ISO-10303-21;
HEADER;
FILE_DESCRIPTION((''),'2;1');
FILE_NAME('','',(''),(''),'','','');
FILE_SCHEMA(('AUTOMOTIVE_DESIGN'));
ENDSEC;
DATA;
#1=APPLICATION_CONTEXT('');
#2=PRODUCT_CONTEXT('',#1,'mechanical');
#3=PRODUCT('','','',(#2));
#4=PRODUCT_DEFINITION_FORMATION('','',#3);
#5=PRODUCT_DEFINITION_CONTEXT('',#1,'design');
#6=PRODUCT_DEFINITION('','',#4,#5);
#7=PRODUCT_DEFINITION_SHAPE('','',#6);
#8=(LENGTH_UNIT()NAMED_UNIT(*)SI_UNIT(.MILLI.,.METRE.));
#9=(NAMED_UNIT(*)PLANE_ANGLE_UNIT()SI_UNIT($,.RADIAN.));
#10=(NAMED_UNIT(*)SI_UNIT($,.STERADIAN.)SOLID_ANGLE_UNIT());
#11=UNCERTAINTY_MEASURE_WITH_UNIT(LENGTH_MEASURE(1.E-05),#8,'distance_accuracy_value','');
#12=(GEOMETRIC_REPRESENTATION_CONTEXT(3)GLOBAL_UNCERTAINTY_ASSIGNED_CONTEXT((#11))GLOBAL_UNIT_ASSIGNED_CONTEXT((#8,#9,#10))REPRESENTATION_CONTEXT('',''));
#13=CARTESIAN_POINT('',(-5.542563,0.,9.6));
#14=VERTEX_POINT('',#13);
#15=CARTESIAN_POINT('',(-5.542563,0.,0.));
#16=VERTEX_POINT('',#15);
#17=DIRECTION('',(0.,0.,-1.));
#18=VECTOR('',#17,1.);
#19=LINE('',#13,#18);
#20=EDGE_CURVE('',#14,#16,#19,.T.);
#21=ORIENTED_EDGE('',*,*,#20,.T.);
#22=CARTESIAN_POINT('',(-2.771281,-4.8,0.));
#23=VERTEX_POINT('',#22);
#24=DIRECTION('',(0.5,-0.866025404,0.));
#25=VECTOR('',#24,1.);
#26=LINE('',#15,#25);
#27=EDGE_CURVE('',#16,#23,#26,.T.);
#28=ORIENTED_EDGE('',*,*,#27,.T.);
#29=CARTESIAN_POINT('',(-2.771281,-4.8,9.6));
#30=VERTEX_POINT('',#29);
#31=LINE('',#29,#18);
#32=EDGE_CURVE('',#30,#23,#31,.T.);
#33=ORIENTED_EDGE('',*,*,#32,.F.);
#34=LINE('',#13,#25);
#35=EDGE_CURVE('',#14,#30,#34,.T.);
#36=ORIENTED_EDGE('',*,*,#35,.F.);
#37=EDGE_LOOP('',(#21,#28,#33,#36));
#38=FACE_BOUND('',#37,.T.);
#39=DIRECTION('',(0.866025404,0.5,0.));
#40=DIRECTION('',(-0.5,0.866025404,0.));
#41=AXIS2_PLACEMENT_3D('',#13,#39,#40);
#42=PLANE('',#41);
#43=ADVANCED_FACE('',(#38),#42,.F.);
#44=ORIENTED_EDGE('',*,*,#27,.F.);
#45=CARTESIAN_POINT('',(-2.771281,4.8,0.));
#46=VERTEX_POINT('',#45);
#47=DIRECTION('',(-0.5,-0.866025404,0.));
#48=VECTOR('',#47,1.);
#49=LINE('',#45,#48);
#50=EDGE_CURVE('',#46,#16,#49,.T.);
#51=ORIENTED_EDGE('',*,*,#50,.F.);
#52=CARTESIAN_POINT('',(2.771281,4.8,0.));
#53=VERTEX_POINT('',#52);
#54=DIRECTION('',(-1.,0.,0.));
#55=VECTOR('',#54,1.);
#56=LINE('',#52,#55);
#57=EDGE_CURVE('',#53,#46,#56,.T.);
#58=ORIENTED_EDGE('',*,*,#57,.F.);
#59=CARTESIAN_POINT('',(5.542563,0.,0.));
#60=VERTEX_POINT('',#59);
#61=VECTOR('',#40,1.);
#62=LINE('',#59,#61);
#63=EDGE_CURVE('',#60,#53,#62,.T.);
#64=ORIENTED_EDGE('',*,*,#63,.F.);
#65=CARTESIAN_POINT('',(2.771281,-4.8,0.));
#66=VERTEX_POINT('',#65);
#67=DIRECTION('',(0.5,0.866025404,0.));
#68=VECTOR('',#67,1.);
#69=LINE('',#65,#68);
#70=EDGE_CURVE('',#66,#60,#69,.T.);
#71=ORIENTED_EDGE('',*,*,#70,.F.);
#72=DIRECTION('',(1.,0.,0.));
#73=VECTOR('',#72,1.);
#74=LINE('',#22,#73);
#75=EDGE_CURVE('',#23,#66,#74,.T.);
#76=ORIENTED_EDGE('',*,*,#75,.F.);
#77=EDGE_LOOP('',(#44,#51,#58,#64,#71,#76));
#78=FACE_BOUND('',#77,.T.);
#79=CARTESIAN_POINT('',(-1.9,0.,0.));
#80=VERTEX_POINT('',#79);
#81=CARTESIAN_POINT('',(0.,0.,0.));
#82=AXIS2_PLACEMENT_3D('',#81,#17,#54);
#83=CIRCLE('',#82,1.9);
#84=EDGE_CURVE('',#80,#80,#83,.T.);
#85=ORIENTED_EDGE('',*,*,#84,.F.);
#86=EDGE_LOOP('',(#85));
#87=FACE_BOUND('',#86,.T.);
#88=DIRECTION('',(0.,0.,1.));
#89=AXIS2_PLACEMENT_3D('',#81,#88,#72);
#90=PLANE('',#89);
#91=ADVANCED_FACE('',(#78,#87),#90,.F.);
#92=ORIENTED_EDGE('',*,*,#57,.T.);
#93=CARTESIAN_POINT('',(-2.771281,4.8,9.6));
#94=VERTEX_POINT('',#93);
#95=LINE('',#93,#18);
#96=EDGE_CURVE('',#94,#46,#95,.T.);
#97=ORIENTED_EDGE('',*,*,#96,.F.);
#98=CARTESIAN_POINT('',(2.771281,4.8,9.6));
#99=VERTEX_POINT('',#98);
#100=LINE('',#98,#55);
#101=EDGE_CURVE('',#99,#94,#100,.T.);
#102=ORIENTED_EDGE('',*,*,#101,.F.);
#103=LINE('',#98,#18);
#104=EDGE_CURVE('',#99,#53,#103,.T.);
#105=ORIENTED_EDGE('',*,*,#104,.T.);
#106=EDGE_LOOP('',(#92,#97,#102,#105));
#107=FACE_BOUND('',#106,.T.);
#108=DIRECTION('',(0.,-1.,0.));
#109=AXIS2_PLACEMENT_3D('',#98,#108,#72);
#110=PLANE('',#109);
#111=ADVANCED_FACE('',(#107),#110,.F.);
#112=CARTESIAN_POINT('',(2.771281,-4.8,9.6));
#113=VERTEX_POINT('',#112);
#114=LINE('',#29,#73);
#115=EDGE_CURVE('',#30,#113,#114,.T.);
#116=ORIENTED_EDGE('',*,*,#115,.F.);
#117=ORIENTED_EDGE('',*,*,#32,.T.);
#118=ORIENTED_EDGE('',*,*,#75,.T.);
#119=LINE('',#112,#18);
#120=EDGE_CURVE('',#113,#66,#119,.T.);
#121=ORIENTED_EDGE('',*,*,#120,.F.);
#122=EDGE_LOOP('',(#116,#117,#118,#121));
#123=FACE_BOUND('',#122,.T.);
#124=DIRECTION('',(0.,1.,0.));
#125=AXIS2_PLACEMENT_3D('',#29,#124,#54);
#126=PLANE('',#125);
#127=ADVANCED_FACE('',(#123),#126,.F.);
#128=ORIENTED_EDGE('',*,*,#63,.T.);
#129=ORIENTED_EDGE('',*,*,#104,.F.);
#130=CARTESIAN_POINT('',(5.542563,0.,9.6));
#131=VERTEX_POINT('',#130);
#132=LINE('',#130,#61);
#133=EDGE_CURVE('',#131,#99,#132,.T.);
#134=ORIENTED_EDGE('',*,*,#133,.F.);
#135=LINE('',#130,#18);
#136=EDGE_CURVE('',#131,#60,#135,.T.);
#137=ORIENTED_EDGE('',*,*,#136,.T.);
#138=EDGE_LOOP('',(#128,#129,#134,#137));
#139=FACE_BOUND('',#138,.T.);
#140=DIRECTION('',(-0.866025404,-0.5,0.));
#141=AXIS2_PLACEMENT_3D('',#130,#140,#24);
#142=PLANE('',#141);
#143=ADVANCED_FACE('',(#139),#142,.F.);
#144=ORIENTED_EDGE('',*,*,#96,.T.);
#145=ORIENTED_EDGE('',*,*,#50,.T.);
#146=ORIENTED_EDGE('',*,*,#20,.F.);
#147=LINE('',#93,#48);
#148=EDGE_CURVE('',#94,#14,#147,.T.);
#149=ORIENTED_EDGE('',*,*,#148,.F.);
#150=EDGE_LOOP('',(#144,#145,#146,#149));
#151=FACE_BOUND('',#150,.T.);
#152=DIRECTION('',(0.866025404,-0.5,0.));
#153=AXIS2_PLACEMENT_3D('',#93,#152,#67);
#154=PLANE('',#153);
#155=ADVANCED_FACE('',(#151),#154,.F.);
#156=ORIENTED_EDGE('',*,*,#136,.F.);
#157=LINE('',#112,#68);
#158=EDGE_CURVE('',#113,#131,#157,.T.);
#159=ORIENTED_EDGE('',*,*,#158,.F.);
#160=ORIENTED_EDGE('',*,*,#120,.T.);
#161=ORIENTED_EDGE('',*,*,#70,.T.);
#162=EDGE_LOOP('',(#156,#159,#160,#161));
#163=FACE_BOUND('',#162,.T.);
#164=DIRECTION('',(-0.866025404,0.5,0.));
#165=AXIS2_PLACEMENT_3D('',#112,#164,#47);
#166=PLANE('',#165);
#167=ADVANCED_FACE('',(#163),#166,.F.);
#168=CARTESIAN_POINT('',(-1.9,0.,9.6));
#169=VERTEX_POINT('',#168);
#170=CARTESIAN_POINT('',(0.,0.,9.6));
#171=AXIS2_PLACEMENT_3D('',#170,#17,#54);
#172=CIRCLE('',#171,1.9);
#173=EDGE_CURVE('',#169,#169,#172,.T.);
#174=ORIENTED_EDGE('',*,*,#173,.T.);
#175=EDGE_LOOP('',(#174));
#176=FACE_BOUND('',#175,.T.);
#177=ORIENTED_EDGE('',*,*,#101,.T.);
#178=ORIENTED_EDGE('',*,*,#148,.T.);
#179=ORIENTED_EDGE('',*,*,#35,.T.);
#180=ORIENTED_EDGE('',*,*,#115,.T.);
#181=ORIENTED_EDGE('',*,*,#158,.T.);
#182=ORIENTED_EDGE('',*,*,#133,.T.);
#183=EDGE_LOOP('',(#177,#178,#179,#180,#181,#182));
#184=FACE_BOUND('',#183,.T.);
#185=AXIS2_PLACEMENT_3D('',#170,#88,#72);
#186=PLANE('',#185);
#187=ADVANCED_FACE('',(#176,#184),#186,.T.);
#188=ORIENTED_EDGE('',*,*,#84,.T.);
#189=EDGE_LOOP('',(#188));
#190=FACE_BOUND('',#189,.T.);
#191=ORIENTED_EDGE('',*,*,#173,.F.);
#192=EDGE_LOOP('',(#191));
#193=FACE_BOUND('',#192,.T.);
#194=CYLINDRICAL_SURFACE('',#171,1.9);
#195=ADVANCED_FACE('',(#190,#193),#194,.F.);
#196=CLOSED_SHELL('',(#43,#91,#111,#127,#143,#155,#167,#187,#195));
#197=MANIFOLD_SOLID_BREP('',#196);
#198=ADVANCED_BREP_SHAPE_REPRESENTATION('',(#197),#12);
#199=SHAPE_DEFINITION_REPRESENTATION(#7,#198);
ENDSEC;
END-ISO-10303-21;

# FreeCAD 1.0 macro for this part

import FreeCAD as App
import Part
import Sketcher
from FreeCAD import Vector
Q = App.Units.Quantity

doc = App.newDocument("Part")
body = doc.addObject("PartDesign::Body", "Body")

# Sketch on XY plane
sketch1 = body.newObject("Sketcher::SketchObject", "Sketch")
sketch1.AttachmentSupport = (doc.getObject("XY_Plane"), [""])
sketch1.MapMode = "FlatFace"
sketch1.addGeometry(Part.LineSegment(Vector(6, 0, 0), Vector(3, 5, 0)), False)
sketch1.addGeometry(Part.LineSegment(Vector(3, 5, 0), Vector(-3, 5, 0)), False)
sketch1.addGeometry(Part.LineSegment(Vector(-3, 5, 0), Vector(-6, 0, 0)), False)
sketch1.addGeometry(Part.LineSegment(Vector(-6, 0, 0), Vector(-3, -5, 0)), False)
sketch1.addGeometry(Part.LineSegment(Vector(-3, -5, 0), Vector(3, -5, 0)), False)
sketch1.addGeometry(Part.LineSegment(Vector(3, -5, 0), Vector(6, 0, 0)), False)
sketch1.addConstraint(Sketcher.Constraint("Coincident", 0, 2, 1, 1))
sketch1.addConstraint(Sketcher.Constraint("Coincident", 1, 2, 2, 1))
sketch1.addConstraint(Sketcher.Constraint("Coincident", 2, 2, 3, 1))
sketch1.addConstraint(Sketcher.Constraint("Coincident", 3, 2, 4, 1))
sketch1.addConstraint(Sketcher.Constraint("Coincident", 4, 2, 5, 1))
sketch1.addConstraint(Sketcher.Constraint("Coincident", 5, 2, 0, 1))
sketch1.addConstraint(Sketcher.Constraint("Horizontal", 1))
sketch1.addConstraint(Sketcher.Constraint("Horizontal", 4))
sketch1.addConstraint(Sketcher.Constraint("Symmetric", 0, 2, 3, 2, -1, 1))
sketch1.addConstraint(Sketcher.Constraint("Symmetric", 2, 2, 5, 2, -1, 1))
sketch1.addConstraint(Sketcher.Constraint("PointOnObject", 2, 2, -1))
sketch1.addConstraint(Sketcher.Constraint("Parallel", 2, 5))
sketch1.addConstraint(Sketcher.Constraint("Vertical", 1, 2, 3, 2))
sketch1.addConstraint(Sketcher.Constraint("Angle", 0, Q("120 deg")))
sketch1.addConstraint(Sketcher.Constraint("DistanceY", -1, 1, 0, 2, Q("4.8 mm")))
sketch1.addConstraint(Sketcher.Constraint("DistanceX", 1, 2, 1, 1, Q("5.542563 mm")))
pad1 = body.newObject("PartDesign::Pad", "Pad")
pad1.Profile = sketch1
pad1.Length = 9.6

# Sketch on XY plane
sketch2 = body.newObject("Sketcher::SketchObject", "Sketch001")
sketch2.AttachmentSupport = (doc.getObject("XY_Plane"), [""])
sketch2.MapMode = "FlatFace"
sketch2.addGeometry(Part.Circle(Vector(0, 0, 0), Vector(0, 0, 1), 1.9), False)
sketch2.addConstraint(Sketcher.Constraint("Coincident", 0, 3, -1, 1))
sketch2.addConstraint(Sketcher.Constraint("Diameter", 0, Q("3.8 mm")))
pocket1 = body.newObject("PartDesign::Pocket", "Pocket")
pocket1.Profile = sketch2
pocket1.Type = "ThroughAll"
pocket1.Reversed = True

doc.recompute()
